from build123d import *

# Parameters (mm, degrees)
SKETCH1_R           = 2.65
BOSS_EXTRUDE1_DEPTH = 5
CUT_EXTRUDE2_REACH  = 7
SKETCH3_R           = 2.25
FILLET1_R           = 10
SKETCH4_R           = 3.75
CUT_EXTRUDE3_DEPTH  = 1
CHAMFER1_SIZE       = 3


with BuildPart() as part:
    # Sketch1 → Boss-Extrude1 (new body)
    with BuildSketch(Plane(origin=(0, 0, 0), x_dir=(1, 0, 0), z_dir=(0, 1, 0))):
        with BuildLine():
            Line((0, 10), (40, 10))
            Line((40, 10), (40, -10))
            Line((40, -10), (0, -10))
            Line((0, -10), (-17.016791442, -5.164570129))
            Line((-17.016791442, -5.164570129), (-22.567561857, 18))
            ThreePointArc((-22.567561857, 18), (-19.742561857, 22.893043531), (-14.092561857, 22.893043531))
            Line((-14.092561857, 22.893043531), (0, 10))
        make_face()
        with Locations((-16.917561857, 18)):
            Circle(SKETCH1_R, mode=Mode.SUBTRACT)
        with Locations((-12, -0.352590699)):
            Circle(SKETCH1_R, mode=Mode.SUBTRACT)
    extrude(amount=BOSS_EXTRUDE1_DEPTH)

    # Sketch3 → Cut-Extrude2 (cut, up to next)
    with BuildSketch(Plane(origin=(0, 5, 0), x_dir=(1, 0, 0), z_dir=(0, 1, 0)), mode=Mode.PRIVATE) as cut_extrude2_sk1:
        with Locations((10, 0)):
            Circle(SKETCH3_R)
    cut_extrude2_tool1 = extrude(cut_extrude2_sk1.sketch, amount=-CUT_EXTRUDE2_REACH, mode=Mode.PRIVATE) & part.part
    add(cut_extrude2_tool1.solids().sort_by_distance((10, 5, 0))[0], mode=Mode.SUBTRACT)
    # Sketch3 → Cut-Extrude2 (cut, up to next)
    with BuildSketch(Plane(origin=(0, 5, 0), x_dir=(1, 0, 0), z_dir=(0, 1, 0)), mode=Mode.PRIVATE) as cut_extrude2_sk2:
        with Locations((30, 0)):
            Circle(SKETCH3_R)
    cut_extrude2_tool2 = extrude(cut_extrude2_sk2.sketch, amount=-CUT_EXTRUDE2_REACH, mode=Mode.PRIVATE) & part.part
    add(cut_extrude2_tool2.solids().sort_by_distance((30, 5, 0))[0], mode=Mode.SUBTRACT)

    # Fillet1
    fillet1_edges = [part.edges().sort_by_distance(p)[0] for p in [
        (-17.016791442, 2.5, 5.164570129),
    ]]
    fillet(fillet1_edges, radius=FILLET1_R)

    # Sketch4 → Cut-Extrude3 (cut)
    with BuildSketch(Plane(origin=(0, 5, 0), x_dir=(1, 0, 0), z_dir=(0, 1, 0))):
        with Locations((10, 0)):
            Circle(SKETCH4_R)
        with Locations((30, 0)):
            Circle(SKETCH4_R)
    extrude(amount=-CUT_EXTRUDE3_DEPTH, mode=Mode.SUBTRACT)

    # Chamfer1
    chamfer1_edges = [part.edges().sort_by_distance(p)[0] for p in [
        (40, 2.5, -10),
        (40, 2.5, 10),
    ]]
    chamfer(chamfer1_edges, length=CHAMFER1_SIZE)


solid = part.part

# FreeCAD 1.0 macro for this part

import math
import FreeCAD as App
import Part
import Sketcher
from FreeCAD import Vector


def edges_at(feature, points):
    """Names of the edges that pass closest to the given points."""
    edges = feature.Shape.Edges
    near = lambda p: min(range(len(edges)), key=lambda i: edges[i].distToShape(Part.Vertex(*p))[0])
    return sorted({f"Edge{near(p) + 1}" for p in points})

doc = App.newDocument("Part")
body = doc.addObject("PartDesign::Body", "Body")

# Sketch on XZ plane
sketch1 = body.newObject("Sketcher::SketchObject", "Sketch")
sketch1.AttachmentSupport = (doc.getObject("XZ_Plane"), [""])
sketch1.MapMode = "FlatFace"
sketch1.addGeometry(Part.LineSegment(Vector(40, -10, 0), Vector(0, -10, 0)), False)
sketch1.addGeometry(Part.LineSegment(Vector(0, -10, 0), Vector(-14.092562, -22.893044, 0)), False)
sketch1.addGeometry(Part.ArcOfCircle(Part.Circle(Vector(-16.917562, -18, 0), Vector(0, 0, 1), 5.65), math.radians(180), math.radians(300)), False)
sketch1.addGeometry(Part.LineSegment(Vector(-22.567562, -18, 0), Vector(-17.016791, 5.16457, 0)), False)
sketch1.addGeometry(Part.LineSegment(Vector(-17.016791, 5.16457, 0), Vector(0, 10, 0)), False)
sketch1.addGeometry(Part.LineSegment(Vector(0, 10, 0), Vector(40, 10, 0)), False)
sketch1.addGeometry(Part.LineSegment(Vector(40, 10, 0), Vector(40, -10, 0)), False)
sketch1.addGeometry(Part.Circle(Vector(-12, 0.352591, 0), Vector(0, 0, 1), 2.65), False)
sketch1.addGeometry(Part.Circle(Vector(-16.917562, -18, 0), Vector(0, 0, 1), 2.65), False)
sketch1.addConstraint(Sketcher.Constraint("Coincident", 0, 2, 1, 1))
sketch1.addConstraint(Sketcher.Constraint("Coincident", 1, 2, 2, 2))
sketch1.addConstraint(Sketcher.Constraint("Coincident", 2, 1, 3, 1))
sketch1.addConstraint(Sketcher.Constraint("Coincident", 3, 2, 4, 1))
sketch1.addConstraint(Sketcher.Constraint("Coincident", 4, 2, 5, 1))
sketch1.addConstraint(Sketcher.Constraint("Coincident", 5, 2, 6, 1))
sketch1.addConstraint(Sketcher.Constraint("Coincident", 6, 2, 0, 1))
sketch1.addConstraint(Sketcher.Constraint("Horizontal", 0))
sketch1.addConstraint(Sketcher.Constraint("Horizontal", 5))
sketch1.addConstraint(Sketcher.Constraint("Vertical", 6))
sketch1.addConstraint(Sketcher.Constraint("Coincident", 8, 3, 2, 3))
sketch1.addConstraint(Sketcher.Constraint("Equal", 7, 8))
sketch1.addConstraint(Sketcher.Constraint("Symmetric", 0, 2, 4, 2, -1, 1))
sketch1.addConstraint(Sketcher.Constraint("PointOnObject", 0, 2, -2))
sketch1.addConstraint(Sketcher.Constraint("Horizontal", 8, 3, 2, 1))
sketch1.addConstraint(Sketcher.Constraint("Diameter", 7, 5.3))
sketch1.addConstraint(Sketcher.Constraint("DistanceX", 0, 2, 0, 1, 40.0))
sketch1.addConstraint(Sketcher.Constraint("DistanceY", 6, 2, 6, 1, 20.0))
sketch1.addConstraint(Sketcher.Constraint("Radius", 2, 5.65))
sketch1.addConstraint(Sketcher.Constraint("DistanceY", 2, 3, -1, 1, 18.0))
sketch1.addConstraint(Sketcher.Constraint("DistanceX", 7, 3, -1, 1, 12.0))
sketch1.addConstraint(Sketcher.Constraint("DistanceX", 2, 3, 1, 2, 2.825))
sketch1.addConstraint(Sketcher.Constraint("DistanceX", 2, 3, -1, 1, 16.917562))
sketch1.addConstraint(Sketcher.Constraint("DistanceY", -1, 1, 7, 3, 0.352591))
sketch1.addConstraint(Sketcher.Constraint("DistanceX", 3, 2, -1, 1, 17.016791))
sketch1.addConstraint(Sketcher.Constraint("DistanceY", -1, 1, 3, 2, 5.16457))
pad1 = body.newObject("PartDesign::Pad", "Pad")
pad1.Profile = sketch1
pad1.Length = 5
pad1.Reversed = True

# Sketch on XZ plane
sketch2 = body.newObject("Sketcher::SketchObject", "Sketch001")
sketch2.AttachmentSupport = (doc.getObject("XZ_Plane"), [""])
sketch2.MapMode = "FlatFace"
sketch2.AttachmentOffset = App.Placement(Vector(0, 0, -5), App.Rotation())
sketch2.addGeometry(Part.Circle(Vector(10, 0, 0), Vector(0, 0, 1), 2.25), False)
sketch2.addConstraint(Sketcher.Constraint("PointOnObject", 0, 3, -1))
sketch2.addConstraint(Sketcher.Constraint("Diameter", 0, 4.5))
sketch2.addConstraint(Sketcher.Constraint("DistanceX", -1, 1, 0, 3, 10.0))
pocket1 = body.newObject("PartDesign::Pocket", "Pocket")
pocket1.Profile = sketch2
pocket1.Type = "UpToFirst"
pocket1.Reversed = True

# Sketch on XZ plane
sketch3 = body.newObject("Sketcher::SketchObject", "Sketch002")
sketch3.AttachmentSupport = (doc.getObject("XZ_Plane"), [""])
sketch3.MapMode = "FlatFace"
sketch3.AttachmentOffset = App.Placement(Vector(0, 0, -5), App.Rotation())
sketch3.addGeometry(Part.Circle(Vector(30, 0, 0), Vector(0, 0, 1), 2.25), False)
sketch3.addConstraint(Sketcher.Constraint("PointOnObject", 0, 3, -1))
sketch3.addConstraint(Sketcher.Constraint("Diameter", 0, 4.5))
sketch3.addConstraint(Sketcher.Constraint("DistanceX", -1, 1, 0, 3, 30.0))
pocket2 = body.newObject("PartDesign::Pocket", "Pocket001")
pocket2.Profile = sketch3
pocket2.Type = "UpToFirst"
pocket2.Reversed = True
doc.recompute()

fillet = body.newObject("PartDesign::Fillet", "Fillet")
fillet.Base = (pocket2, edges_at(pocket2, [(-17.017, 2.5, 5.165)]))
fillet.Radius = 10

# Sketch on XZ plane
sketch4 = body.newObject("Sketcher::SketchObject", "Sketch003")
sketch4.AttachmentSupport = (doc.getObject("XZ_Plane"), [""])
sketch4.MapMode = "FlatFace"
sketch4.AttachmentOffset = App.Placement(Vector(0, 0, -5), App.Rotation())
sketch4.addGeometry(Part.Circle(Vector(10, 0, 0), Vector(0, 0, 1), 3.75), False)
sketch4.addGeometry(Part.Circle(Vector(30, 0, 0), Vector(0, 0, 1), 3.75), False)
sketch4.addConstraint(Sketcher.Constraint("Equal", 0, 1))
sketch4.addConstraint(Sketcher.Constraint("PointOnObject", 0, 3, -1))
sketch4.addConstraint(Sketcher.Constraint("PointOnObject", 1, 3, -1))
sketch4.addConstraint(Sketcher.Constraint("Diameter", 0, 7.5))
sketch4.addConstraint(Sketcher.Constraint("DistanceX", -1, 1, 0, 3, 10.0))
sketch4.addConstraint(Sketcher.Constraint("DistanceX", -1, 1, 1, 3, 30.0))
pocket3 = body.newObject("PartDesign::Pocket", "Pocket002")
pocket3.Profile = sketch4
pocket3.Length = 1
pocket3.Reversed = True
doc.recompute()

chamfer = body.newObject("PartDesign::Chamfer", "Chamfer")
chamfer.Base = (pocket3, edges_at(pocket3, [(40, 2.5, -10), (40, 2.5, 10)]))
chamfer.Size = 3

doc.recompute()
